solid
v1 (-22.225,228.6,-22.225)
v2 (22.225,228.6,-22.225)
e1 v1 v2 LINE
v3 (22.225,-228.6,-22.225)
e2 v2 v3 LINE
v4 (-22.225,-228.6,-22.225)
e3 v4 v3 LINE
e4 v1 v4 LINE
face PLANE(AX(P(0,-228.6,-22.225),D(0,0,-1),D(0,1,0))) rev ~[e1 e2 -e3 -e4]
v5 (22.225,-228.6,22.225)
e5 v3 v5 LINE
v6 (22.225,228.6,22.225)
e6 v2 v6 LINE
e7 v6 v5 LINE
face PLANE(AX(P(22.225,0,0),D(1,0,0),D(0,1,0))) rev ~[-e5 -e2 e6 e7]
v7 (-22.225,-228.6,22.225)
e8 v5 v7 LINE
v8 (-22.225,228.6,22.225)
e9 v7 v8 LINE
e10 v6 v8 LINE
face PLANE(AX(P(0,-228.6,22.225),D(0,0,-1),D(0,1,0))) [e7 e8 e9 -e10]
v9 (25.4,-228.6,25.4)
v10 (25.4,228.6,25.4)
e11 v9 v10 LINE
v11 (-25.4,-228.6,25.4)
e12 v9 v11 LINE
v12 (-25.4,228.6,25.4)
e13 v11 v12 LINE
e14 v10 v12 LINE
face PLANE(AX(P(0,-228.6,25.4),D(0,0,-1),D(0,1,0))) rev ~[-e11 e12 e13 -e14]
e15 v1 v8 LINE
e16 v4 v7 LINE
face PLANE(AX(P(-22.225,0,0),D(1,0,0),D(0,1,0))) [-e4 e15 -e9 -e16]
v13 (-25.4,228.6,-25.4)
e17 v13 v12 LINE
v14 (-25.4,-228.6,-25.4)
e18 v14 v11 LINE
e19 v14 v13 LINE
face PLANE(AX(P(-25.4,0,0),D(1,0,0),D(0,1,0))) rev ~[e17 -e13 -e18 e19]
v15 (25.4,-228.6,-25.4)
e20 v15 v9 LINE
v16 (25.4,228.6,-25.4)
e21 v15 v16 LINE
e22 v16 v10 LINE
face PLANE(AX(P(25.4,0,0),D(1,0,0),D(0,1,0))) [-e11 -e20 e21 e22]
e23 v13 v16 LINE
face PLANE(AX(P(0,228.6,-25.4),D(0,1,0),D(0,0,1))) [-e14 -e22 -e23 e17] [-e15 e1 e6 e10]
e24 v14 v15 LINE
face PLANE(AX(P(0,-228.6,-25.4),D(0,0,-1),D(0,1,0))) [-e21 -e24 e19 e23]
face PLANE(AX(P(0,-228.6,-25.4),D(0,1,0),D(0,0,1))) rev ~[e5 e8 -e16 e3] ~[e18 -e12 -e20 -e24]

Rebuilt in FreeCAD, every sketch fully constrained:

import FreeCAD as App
import Part
import Sketcher

V = App.Vector
Q = App.Units.Quantity


def faces_at(feature, points):
    """Names of the faces that lie closest to the given points."""
    faces = feature.Shape.Faces
    near = lambda p: min(range(len(faces)), key=lambda i: faces[i].distToShape(Part.Vertex(*p))[0])
    return sorted({f"Face{near(p) + 1}" for p in points})


def add_polygon(sketch, points):
    """Adds a closed chain of lines whose ends are joined by coincident constraints."""
    first, n = sketch.GeometryCount, len(points)
    for a, b in zip(points, points[1:] + points[:1]):
        sketch.addGeometry(Part.LineSegment(App.Vector(*a, 0), App.Vector(*b, 0)), False)
    for i in range(n):
        sketch.addConstraint(Sketcher.Constraint("Coincident", first + i, 2, first + (i + 1) % n, 1))

doc = App.newDocument("Part")
params = doc.addObject("Spreadsheet::Sheet", "Params")
for row, (alias, value) in enumerate([
    ("sketch1_width", "18 in"),
    ("sketch1_height", "2 in"),
    ("pad1_length", "2 in"),
    ("thickness_wall", "0.125 in"),
], start=1):
    params.set(f"A{row}", alias)
    params.set(f"B{row}", "=" + value)
    params.setAlias(f"B{row}", alias)

body = doc.addObject("PartDesign::Body", "Body")

sketch1 = body.newObject("Sketcher::SketchObject", "Sketch")
sketch1.AttachmentSupport = (doc.getObject("YZ_Plane"), [""])
sketch1.MapMode = "FlatFace"
add_polygon(sketch1, [(-229, 25), (-229, -25), (229, -25), (229, 25)])
sketch1.addConstraint([
    Sketcher.Constraint("Vertical", 0),
    Sketcher.Constraint("Horizontal", 1),
    Sketcher.Constraint("Vertical", 2),
    Sketcher.Constraint("Horizontal", 3),
    Sketcher.Constraint("Symmetric", 0, 2, 2, 2, -1, 1),
    Sketcher.Constraint("DistanceX", 1, 1, 1, 2, Q("18 in")),
    Sketcher.Constraint("DistanceY", 0, 2, 0, 1, Q("2 in")),
])
sketch1.setExpression("Constraints[9]", "Params.sketch1_width")
sketch1.setExpression("Constraints[10]", "Params.sketch1_height")
pad1 = body.newObject("PartDesign::Pad", "Pad")
pad1.Profile = sketch1
pad1.setExpression("Length", "Params.pad1_length")
pad1.Midplane = True
doc.recompute()

thickness = body.newObject("PartDesign::Thickness", "Thickness")
thickness.Base = (pad1, faces_at(pad1, [(0, -228.6, 0), (0, 228.6, 0)]))
thickness.setExpression("Value", "Params.thickness_wall")
thickness.Reversed = True
thickness.Join = "Arc"

doc.recompute()
